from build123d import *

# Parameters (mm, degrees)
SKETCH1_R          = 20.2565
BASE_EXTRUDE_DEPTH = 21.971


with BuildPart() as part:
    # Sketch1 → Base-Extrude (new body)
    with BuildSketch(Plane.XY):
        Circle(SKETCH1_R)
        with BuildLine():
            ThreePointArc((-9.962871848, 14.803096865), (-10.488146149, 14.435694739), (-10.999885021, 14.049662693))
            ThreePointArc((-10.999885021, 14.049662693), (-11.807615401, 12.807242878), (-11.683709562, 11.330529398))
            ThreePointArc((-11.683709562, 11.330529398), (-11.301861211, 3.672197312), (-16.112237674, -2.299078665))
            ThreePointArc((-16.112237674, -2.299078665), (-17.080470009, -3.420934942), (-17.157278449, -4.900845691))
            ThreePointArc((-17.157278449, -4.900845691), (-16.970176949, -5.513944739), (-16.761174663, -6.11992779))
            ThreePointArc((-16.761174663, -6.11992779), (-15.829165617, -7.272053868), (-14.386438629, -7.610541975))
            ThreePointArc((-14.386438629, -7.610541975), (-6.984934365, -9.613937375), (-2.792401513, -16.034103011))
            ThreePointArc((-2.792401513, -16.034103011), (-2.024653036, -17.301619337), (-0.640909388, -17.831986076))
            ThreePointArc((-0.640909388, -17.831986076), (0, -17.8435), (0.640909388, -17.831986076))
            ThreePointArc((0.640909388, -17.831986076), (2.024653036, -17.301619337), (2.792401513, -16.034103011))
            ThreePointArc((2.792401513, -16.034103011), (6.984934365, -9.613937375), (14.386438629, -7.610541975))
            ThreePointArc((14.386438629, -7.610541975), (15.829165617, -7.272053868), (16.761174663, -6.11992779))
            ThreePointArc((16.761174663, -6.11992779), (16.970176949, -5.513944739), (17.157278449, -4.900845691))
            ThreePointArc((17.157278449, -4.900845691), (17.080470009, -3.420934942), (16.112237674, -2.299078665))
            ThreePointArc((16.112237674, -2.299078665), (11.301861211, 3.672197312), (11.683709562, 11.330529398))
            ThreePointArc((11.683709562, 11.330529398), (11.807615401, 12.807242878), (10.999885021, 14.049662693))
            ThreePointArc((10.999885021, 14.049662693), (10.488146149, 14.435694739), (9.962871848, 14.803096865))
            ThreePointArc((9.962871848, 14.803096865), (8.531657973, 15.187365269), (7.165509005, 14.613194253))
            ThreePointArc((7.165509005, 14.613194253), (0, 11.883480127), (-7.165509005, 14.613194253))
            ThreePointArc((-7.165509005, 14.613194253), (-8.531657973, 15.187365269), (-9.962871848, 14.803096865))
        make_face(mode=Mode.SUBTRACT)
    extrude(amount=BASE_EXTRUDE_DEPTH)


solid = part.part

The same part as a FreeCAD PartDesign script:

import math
import FreeCAD as App
import Part
import Sketcher
from FreeCAD import Vector
Q = App.Units.Quantity

doc = App.newDocument("Part")
body = doc.addObject("PartDesign::Body", "Body")

# Sketch on XY plane
sketch1 = body.newObject("Sketcher::SketchObject", "Sketch")
sketch1.AttachmentSupport = (doc.getObject("XY_Plane"), [""])
sketch1.MapMode = "FlatFace"
sketch1.addGeometry(Part.Circle(Vector(0, 0, 0), Vector(0, 0, 1), 20.2565), False)
sketch1.addGeometry(Part.ArcOfCircle(Part.Circle(Vector(0, -0.000001, 0), Vector(0, 0, 1), 17.843501), math.radians(123.941586), math.radians(128.058414)), False)
sketch1.addGeometry(Part.ArcOfCircle(Part.Circle(Vector(-8.68649, 12.906615, 0), Vector(0, 0, 1), 2.286), math.radians(48.291134), math.radians(123.941586)), False)
sketch1.addGeometry(Part.ArcOfCircle(Part.Circle(Vector(0, 22.65308, 0), Vector(0, 0, 1), 10.7696), math.radians(-131.708866), math.radians(-48.291134)), False)
sketch1.addGeometry(Part.ArcOfCircle(Part.Circle(Vector(8.68649, 12.906615, 0), Vector(0, 0, 1), 2.286), math.radians(56.058414), math.radians(131.708866)), False)
sketch1.addGeometry(Part.ArcOfCircle(Part.Circle(Vector(0, -0.000001, 0), Vector(0, 0, 1), 17.843501), math.radians(51.941586), math.radians(56.058414)), False)
sketch1.addGeometry(Part.ArcOfCircle(Part.Circle(Vector(9.590647, 12.249706, 0), Vector(0, 0, 1), 2.286), math.radians(-23.708866), math.radians(51.941586)), False)
sketch1.addGeometry(Part.ArcOfCircle(Part.Circle(Vector(21.544359, 7.000187, 0), Vector(0, 0, 1), 10.7696), math.radians(156.291134), math.radians(239.708866)), False)
sketch1.addGeometry(Part.ArcOfCircle(Part.Circle(Vector(14.959193, -4.272979, 0), Vector(0, 0, 1), 2.286), math.radians(-15.941586), math.radians(59.708866)), False)
sketch1.addGeometry(Part.ArcOfCircle(Part.Circle(Vector(0.000001, 0, 0), Vector(0, 0, 1), 17.843499), math.radians(-20.058414), math.radians(-15.941586)), False)
sketch1.addGeometry(Part.ArcOfCircle(Part.Circle(Vector(14.613836, -5.33588, 0), Vector(0, 0, 1), 2.286), math.radians(-95.708866), math.radians(-20.058414)), False)
sketch1.addGeometry(Part.ArcOfCircle(Part.Circle(Vector(13.315146, -18.326727, 0), Vector(0, 0, 1), 10.7696), math.radians(84.291134), math.radians(167.708866)), False)
sketch1.addGeometry(Part.ArcOfCircle(Part.Circle(Vector(0.5588, -15.547461, 0), Vector(0, 0, 1), 2.286), math.radians(-87.941586), math.radians(-12.291134)), False)
sketch1.addGeometry(Part.ArcOfCircle(Part.Circle(Vector(0, 0, 0), Vector(0, 0, 1), 17.8435), math.radians(-92.058414), math.radians(-87.941586)), False)
sketch1.addGeometry(Part.ArcOfCircle(Part.Circle(Vector(-0.5588, -15.547461, 0), Vector(0, 0, 1), 2.286), math.radians(-167.708866), math.radians(-92.058414)), False)
sketch1.addGeometry(Part.ArcOfCircle(Part.Circle(Vector(-13.315146, -18.326727, 0), Vector(0, 0, 1), 10.7696), math.radians(12.291134), math.radians(95.708866)), False)
sketch1.addGeometry(Part.ArcOfCircle(Part.Circle(Vector(-14.613836, -5.33588, 0), Vector(0, 0, 1), 2.286), math.radians(-159.941586), math.radians(-84.291134)), False)
sketch1.addGeometry(Part.ArcOfCircle(Part.Circle(Vector(-0.000001, 0, 0), Vector(0, 0, 1), 17.843499), math.radians(-164.058414), math.radians(-159.941586)), False)
sketch1.addGeometry(Part.ArcOfCircle(Part.Circle(Vector(-14.959193, -4.272979, 0), Vector(0, 0, 1), 2.286), math.radians(120.291134), math.radians(195.941586)), False)
sketch1.addGeometry(Part.ArcOfCircle(Part.Circle(Vector(-21.544359, 7.000187, 0), Vector(0, 0, 1), 10.7696), math.radians(-59.708866), math.radians(23.708866)), False)
sketch1.addGeometry(Part.ArcOfCircle(Part.Circle(Vector(-9.590647, 12.249706, 0), Vector(0, 0, 1), 2.286), math.radians(128.058414), math.radians(203.708866)), False)
sketch1.addConstraint(Sketcher.Constraint("Tangent", 1, 1, 2, 2))
sketch1.addConstraint(Sketcher.Constraint("Tangent", 2, 1, 3, 1))
sketch1.addConstraint(Sketcher.Constraint("Tangent", 3, 2, 4, 2))
sketch1.addConstraint(Sketcher.Constraint("Tangent", 4, 1, 5, 2))
sketch1.addConstraint(Sketcher.Constraint("Tangent", 5, 1, 6, 2))
sketch1.addConstraint(Sketcher.Constraint("Tangent", 6, 1, 7, 1))
sketch1.addConstraint(Sketcher.Constraint("Tangent", 7, 2, 8, 2))
sketch1.addConstraint(Sketcher.Constraint("Tangent", 8, 1, 9, 2))
sketch1.addConstraint(Sketcher.Constraint("Tangent", 9, 1, 10, 2))
sketch1.addConstraint(Sketcher.Constraint("Tangent", 10, 1, 11, 1))
sketch1.addConstraint(Sketcher.Constraint("Tangent", 11, 2, 12, 2))
sketch1.addConstraint(Sketcher.Constraint("Tangent", 12, 1, 13, 2))
sketch1.addConstraint(Sketcher.Constraint("Tangent", 13, 1, 14, 2))
sketch1.addConstraint(Sketcher.Constraint("Tangent", 14, 1, 15, 1))
sketch1.addConstraint(Sketcher.Constraint("Tangent", 15, 2, 16, 2))
sketch1.addConstraint(Sketcher.Constraint("Tangent", 16, 1, 17, 2))
sketch1.addConstraint(Sketcher.Constraint("Tangent", 17, 1, 18, 2))
sketch1.addConstraint(Sketcher.Constraint("Tangent", 18, 1, 19, 1))
sketch1.addConstraint(Sketcher.Constraint("Tangent", 19, 2, 20, 2))
sketch1.addConstraint(Sketcher.Constraint("Tangent", 20, 1, 1, 2))
sketch1.addConstraint(Sketcher.Constraint("Coincident", 0, 3, -1, 1))
sketch1.addConstraint(Sketcher.Constraint("Coincident", 1, 3, -1, 1))
sketch1.addConstraint(Sketcher.Constraint("Coincident", 5, 3, -1, 1))
sketch1.addConstraint(Sketcher.Constraint("Coincident", 9, 3, -1, 1))
sketch1.addConstraint(Sketcher.Constraint("Coincident", 13, 3, -1, 1))
sketch1.addConstraint(Sketcher.Constraint("Coincident", 17, 3, -1, 1))
sketch1.addConstraint(Sketcher.Constraint("Equal", 2, 4))
sketch1.addConstraint(Sketcher.Constraint("Equal", 1, 5))
sketch1.addConstraint(Sketcher.Constraint("Equal", 4, 6))
sketch1.addConstraint(Sketcher.Constraint("Equal", 3, 7))
sketch1.addConstraint(Sketcher.Constraint("Equal", 6, 8))
sketch1.addConstraint(Sketcher.Constraint("Equal", 5, 9))
sketch1.addConstraint(Sketcher.Constraint("Equal", 8, 10))
sketch1.addConstraint(Sketcher.Constraint("Equal", 7, 11))
sketch1.addConstraint(Sketcher.Constraint("Equal", 10, 12))
sketch1.addConstraint(Sketcher.Constraint("Equal", 9, 13))
sketch1.addConstraint(Sketcher.Constraint("Equal", 12, 14))
sketch1.addConstraint(Sketcher.Constraint("Equal", 11, 15))
sketch1.addConstraint(Sketcher.Constraint("Equal", 14, 16))
sketch1.addConstraint(Sketcher.Constraint("Equal", 13, 17))
sketch1.addConstraint(Sketcher.Constraint("Equal", 16, 18))
sketch1.addConstraint(Sketcher.Constraint("Equal", 15, 19))
sketch1.addConstraint(Sketcher.Constraint("Equal", 18, 20))
sketch1.addConstraint(Sketcher.Constraint("Symmetric", 11, 3, 15, 3, -2))
sketch1.addConstraint(Sketcher.Constraint("Symmetric", 7, 3, 19, 3, -2))
sketch1.addConstraint(Sketcher.Constraint("PointOnObject", 3, 3, -2))
sketch1.addConstraint(Sketcher.Constraint("Radius", 2, Q("0.09 in")))
sketch1.addConstraint(Sketcher.Constraint("Diameter", 0, Q("1.595 in")))
sketch1.addConstraint(Sketcher.Constraint("Radius", 3, Q("0.424 in")))
sketch1.addConstraint(Sketcher.Constraint("Radius", 1, Q("0.7025 in")))
sketch1.addConstraint(Sketcher.Constraint("DistanceX", -1, 1, 12, 3, Q("0.022 in")))
sketch1.addConstraint(Sketcher.Constraint("DistanceY", 10, 1, 8, 3, Q("0.1314001 in")))
sketch1.addConstraint(Sketcher.Constraint("DistanceX", -1, 1, 11, 2, Q("2.792402 mm")))
sketch1.addConstraint(Sketcher.Constraint("DistanceX", 2, 1, 4, 3, Q("15.851999 mm")))
sketch1.addConstraint(Sketcher.Constraint("DistanceX", 3, 2, 6, 1, Q("4.518201 mm")))
pad1 = body.newObject("PartDesign::Pad", "Pad")
pad1.Profile = sketch1
pad1.Length = Q("0.865 in")

doc.recompute()
